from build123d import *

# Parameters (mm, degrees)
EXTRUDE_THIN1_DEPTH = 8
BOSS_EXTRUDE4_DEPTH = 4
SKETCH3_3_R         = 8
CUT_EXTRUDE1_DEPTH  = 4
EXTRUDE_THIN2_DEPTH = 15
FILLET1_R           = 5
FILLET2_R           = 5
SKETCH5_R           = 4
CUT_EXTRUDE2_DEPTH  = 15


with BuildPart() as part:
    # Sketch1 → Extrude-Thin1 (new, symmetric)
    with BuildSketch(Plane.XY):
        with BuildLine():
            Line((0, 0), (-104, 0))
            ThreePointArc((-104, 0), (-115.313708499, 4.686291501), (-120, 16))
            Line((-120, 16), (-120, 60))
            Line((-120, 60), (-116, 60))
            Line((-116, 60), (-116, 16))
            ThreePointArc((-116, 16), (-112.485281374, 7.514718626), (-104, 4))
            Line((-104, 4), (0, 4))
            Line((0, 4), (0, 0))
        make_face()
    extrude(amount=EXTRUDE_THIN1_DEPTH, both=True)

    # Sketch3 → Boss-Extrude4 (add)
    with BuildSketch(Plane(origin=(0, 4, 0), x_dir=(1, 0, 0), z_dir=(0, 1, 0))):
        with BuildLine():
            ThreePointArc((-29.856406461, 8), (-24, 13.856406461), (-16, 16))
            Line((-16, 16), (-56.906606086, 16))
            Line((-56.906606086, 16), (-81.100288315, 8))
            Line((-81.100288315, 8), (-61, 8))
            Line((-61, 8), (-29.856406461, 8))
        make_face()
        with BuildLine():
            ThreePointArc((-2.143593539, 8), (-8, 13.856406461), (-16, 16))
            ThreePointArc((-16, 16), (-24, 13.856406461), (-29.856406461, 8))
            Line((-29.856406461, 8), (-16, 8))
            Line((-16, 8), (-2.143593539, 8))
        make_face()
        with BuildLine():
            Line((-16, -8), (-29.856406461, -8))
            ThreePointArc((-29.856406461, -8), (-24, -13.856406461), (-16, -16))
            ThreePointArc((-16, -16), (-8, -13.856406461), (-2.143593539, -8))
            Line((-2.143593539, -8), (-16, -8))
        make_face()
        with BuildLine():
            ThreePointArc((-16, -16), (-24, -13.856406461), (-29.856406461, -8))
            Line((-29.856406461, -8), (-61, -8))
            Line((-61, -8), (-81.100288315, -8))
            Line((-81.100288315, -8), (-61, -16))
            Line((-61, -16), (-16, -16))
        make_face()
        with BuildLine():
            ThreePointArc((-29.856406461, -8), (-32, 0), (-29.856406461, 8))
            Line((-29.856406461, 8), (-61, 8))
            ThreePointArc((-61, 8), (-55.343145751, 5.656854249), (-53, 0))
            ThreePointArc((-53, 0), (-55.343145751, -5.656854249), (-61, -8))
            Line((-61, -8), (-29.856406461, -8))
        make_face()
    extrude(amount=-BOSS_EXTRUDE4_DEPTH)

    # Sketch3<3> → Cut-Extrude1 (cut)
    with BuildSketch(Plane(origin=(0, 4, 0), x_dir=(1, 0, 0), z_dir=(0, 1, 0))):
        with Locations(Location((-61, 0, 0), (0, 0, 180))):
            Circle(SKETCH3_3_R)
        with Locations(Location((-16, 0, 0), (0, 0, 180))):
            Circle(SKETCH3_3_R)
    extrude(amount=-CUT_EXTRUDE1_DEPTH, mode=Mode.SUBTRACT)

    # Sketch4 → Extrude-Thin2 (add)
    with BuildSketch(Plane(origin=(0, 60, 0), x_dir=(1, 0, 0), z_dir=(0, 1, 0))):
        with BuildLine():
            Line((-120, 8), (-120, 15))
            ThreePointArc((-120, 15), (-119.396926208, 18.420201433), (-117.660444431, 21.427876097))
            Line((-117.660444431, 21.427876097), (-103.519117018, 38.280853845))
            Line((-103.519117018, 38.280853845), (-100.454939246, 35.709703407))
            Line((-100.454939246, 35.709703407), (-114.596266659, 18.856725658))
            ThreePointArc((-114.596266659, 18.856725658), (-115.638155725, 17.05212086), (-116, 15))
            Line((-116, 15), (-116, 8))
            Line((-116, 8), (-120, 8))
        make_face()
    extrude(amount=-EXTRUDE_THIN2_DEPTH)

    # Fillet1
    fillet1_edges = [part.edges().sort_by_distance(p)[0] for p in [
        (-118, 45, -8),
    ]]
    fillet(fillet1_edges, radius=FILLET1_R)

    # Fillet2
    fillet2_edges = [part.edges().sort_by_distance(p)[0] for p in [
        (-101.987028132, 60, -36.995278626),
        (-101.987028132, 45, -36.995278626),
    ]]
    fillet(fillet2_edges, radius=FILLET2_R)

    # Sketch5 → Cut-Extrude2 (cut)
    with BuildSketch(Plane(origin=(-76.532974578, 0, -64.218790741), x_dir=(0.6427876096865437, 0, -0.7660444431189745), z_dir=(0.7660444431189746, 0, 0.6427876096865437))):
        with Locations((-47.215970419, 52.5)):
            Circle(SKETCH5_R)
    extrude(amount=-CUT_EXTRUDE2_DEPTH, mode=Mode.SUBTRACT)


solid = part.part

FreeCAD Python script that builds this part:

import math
import FreeCAD as App
import Part
import Sketcher
Q = App.Units.Quantity


def edges_at(feature, points):
    """Names of the edges that pass closest to the given points."""
    edges = feature.Shape.Edges
    near = lambda p: min(range(len(edges)), key=lambda i: edges[i].distToShape(Part.Vertex(*p))[0])
    return sorted({f"Edge{near(p) + 1}" for p in points})

doc = App.newDocument("Part")
body = doc.addObject("PartDesign::Body", "Body")

# Sketch on XY plane
sketch1 = body.newObject("Sketcher::SketchObject", "Sketch")
sketch1.AttachmentSupport = (doc.getObject("XY_Plane"), [""])
sketch1.MapMode = "FlatFace"
sketch1.addGeometry(Part.LineSegment(App.Vector(-104, 0, 0), App.Vector(0, 0, 0)), False)
sketch1.addGeometry(Part.LineSegment(App.Vector(0, 0, 0), App.Vector(0, 4, 0)), False)
sketch1.addGeometry(Part.LineSegment(App.Vector(0, 4, 0), App.Vector(-104, 4, 0)), False)
sketch1.addGeometry(Part.ArcOfCircle(Part.Circle(App.Vector(-104, 16, 0), App.Vector(0, 0, 1), 12), math.radians(-180), math.radians(-90)), False)
sketch1.addGeometry(Part.LineSegment(App.Vector(-116, 16, 0), App.Vector(-116, 60, 0)), False)
sketch1.addGeometry(Part.LineSegment(App.Vector(-116, 60, 0), App.Vector(-120, 60, 0)), False)
sketch1.addGeometry(Part.LineSegment(App.Vector(-120, 60, 0), App.Vector(-120, 16, 0)), False)
sketch1.addGeometry(Part.ArcOfCircle(Part.Circle(App.Vector(-104, 16, 0), App.Vector(0, 0, 1), 16), math.radians(180), math.radians(270)), False)
sketch1.addConstraint(Sketcher.Constraint("Coincident", 0, 2, 1, 1))
sketch1.addConstraint(Sketcher.Constraint("Coincident", 1, 2, 2, 1))
sketch1.addConstraint(Sketcher.Constraint("Tangent", 2, 2, 3, 2))
sketch1.addConstraint(Sketcher.Constraint("Tangent", 3, 1, 4, 1))
sketch1.addConstraint(Sketcher.Constraint("Coincident", 4, 2, 5, 1))
sketch1.addConstraint(Sketcher.Constraint("Coincident", 5, 2, 6, 1))
sketch1.addConstraint(Sketcher.Constraint("Tangent", 6, 2, 7, 1))
sketch1.addConstraint(Sketcher.Constraint("Tangent", 7, 2, 0, 1))
sketch1.addConstraint(Sketcher.Constraint("Horizontal", 0))
sketch1.addConstraint(Sketcher.Constraint("Vertical", 1))
sketch1.addConstraint(Sketcher.Constraint("Horizontal", 2))
sketch1.addConstraint(Sketcher.Constraint("Vertical", 4))
sketch1.addConstraint(Sketcher.Constraint("Horizontal", 5))
sketch1.addConstraint(Sketcher.Constraint("Vertical", 6))
sketch1.addConstraint(Sketcher.Constraint("Coincident", 0, 2, -1, 1))
sketch1.addConstraint(Sketcher.Constraint("Coincident", 7, 3, 3, 3))
sketch1.addConstraint(Sketcher.Constraint("Radius", 3, Q("12 mm")))
sketch1.addConstraint(Sketcher.Constraint("Radius", 7, Q("16 mm")))
sketch1.addConstraint(Sketcher.Constraint("DistanceX", 0, 1, 0, 2, Q("104 mm")))
sketch1.addConstraint(Sketcher.Constraint("DistanceY", 4, 1, 4, 2, Q("44 mm")))
pad1 = body.newObject("PartDesign::Pad", "Pad")
pad1.Profile = sketch1
pad1.Length = 16
pad1.Midplane = True

# Sketch on XZ plane
sketch2 = body.newObject("Sketcher::SketchObject", "Sketch001")
sketch2.AttachmentSupport = (doc.getObject("XZ_Plane"), [""])
sketch2.MapMode = "FlatFace"
sketch2.AttachmentOffset = App.Placement(App.Vector(0, 0, -4), App.Rotation())
sketch2.addGeometry(Part.LineSegment(App.Vector(-16, -16, 0), App.Vector(-57, -16, 0)), False)
sketch2.addGeometry(Part.LineSegment(App.Vector(-57, -16, 0), App.Vector(-81, -8, 0)), False)
sketch2.addGeometry(Part.LineSegment(App.Vector(-81, -8, 0), App.Vector(-61, -8, 0)), False)
sketch2.addGeometry(Part.ArcOfCircle(Part.Circle(App.Vector(-61, 0, 0), App.Vector(0, 0, 1), 8), math.radians(-90), math.radians(0)), False)
sketch2.addGeometry(Part.ArcOfCircle(Part.Circle(App.Vector(-61, 0, 0), App.Vector(0, 0, 1), 8), math.radians(0), math.radians(90)), False)
sketch2.addGeometry(Part.LineSegment(App.Vector(-61, 8, 0), App.Vector(-81, 8, 0)), False)
sketch2.addGeometry(Part.LineSegment(App.Vector(-81, 8, 0), App.Vector(-61, 16, 0)), False)
sketch2.addGeometry(Part.LineSegment(App.Vector(-61, 16, 0), App.Vector(-16, 16, 0)), False)
sketch2.addGeometry(Part.ArcOfCircle(Part.Circle(App.Vector(-16, 0, 0), App.Vector(0, 0, 1), 16), math.radians(30), math.radians(90)), False)
sketch2.addGeometry(Part.LineSegment(App.Vector(-2, 8, 0), App.Vector(-30, 8, 0)), False)
sketch2.addGeometry(Part.ArcOfCircle(Part.Circle(App.Vector(-16, 0, 0), App.Vector(0, 0, 1), 16), math.radians(150), math.radians(210)), False)
sketch2.addGeometry(Part.LineSegment(App.Vector(-30, -8, 0), App.Vector(-2, -8, 0)), False)
sketch2.addGeometry(Part.ArcOfCircle(Part.Circle(App.Vector(-16, 0, 0), App.Vector(0, 0, 1), 16), math.radians(-90), math.radians(-30)), False)
sketch2.addConstraint(Sketcher.Constraint("Coincident", 0, 2, 1, 1))
sketch2.addConstraint(Sketcher.Constraint("Coincident", 1, 2, 2, 1))
sketch2.addConstraint(Sketcher.Constraint("Tangent", 2, 2, 3, 1))
sketch2.addConstraint(Sketcher.Constraint("Tangent", 3, 2, 4, 1))
sketch2.addConstraint(Sketcher.Constraint("Tangent", 4, 2, 5, 1))
sketch2.addConstraint(Sketcher.Constraint("Coincident", 5, 2, 6, 1))
sketch2.addConstraint(Sketcher.Constraint("Coincident", 6, 2, 7, 1))
sketch2.addConstraint(Sketcher.Constraint("Tangent", 7, 2, 8, 2))
sketch2.addConstraint(Sketcher.Constraint("Coincident", 8, 1, 9, 1))
sketch2.addConstraint(Sketcher.Constraint("Coincident", 9, 2, 10, 1))
sketch2.addConstraint(Sketcher.Constraint("Coincident", 10, 2, 11, 1))
sketch2.addConstraint(Sketcher.Constraint("Coincident", 11, 2, 12, 2))
sketch2.addConstraint(Sketcher.Constraint("Tangent", 12, 1, 0, 1))
sketch2.addConstraint(Sketcher.Constraint("Horizontal", 0))
sketch2.addConstraint(Sketcher.Constraint("Horizontal", 2))
sketch2.addConstraint(Sketcher.Constraint("Horizontal", 5))
sketch2.addConstraint(Sketcher.Constraint("Horizontal", 7))
sketch2.addConstraint(Sketcher.Constraint("Horizontal", 9))
sketch2.addConstraint(Sketcher.Constraint("Horizontal", 11))
sketch2.addConstraint(Sketcher.Constraint("Coincident", 10, 3, 8, 3))
sketch2.addConstraint(Sketcher.Constraint("Coincident", 12, 3, 8, 3))
sketch2.addConstraint(Sketcher.Constraint("Equal", 3, 4))
sketch2.addConstraint(Sketcher.Constraint("Equal", 8, 10))
sketch2.addConstraint(Sketcher.Constraint("Equal", 10, 12))
sketch2.addConstraint(Sketcher.Constraint("Symmetric", 1, 2, 5, 2, -1))
sketch2.addConstraint(Sketcher.Constraint("Symmetric", 9, 2, 10, 2, -1))
sketch2.addConstraint(Sketcher.Constraint("PointOnObject", 3, 2, -1))
sketch2.addConstraint(Sketcher.Constraint("Horizontal", 5, 2, 8, 1))
sketch2.addConstraint(Sketcher.Constraint("Vertical", 4, 2, 6, 2))
sketch2.addConstraint(Sketcher.Constraint("Radius", 3, Q("8 mm")))
sketch2.addConstraint(Sketcher.Constraint("Radius", 8, Q("16 mm")))
sketch2.addConstraint(Sketcher.Constraint("DistanceX", 7, 1, 7, 2, Q("45 mm")))
sketch2.addConstraint(Sketcher.Constraint("DistanceX", 3, 3, -1, 1, Q("61 mm")))
sketch2.addConstraint(Sketcher.Constraint("DistanceX", 2, 1, 2, 2, Q("20.100288 mm")))
sketch2.addConstraint(Sketcher.Constraint("DistanceX", 0, 2, 0, 1, Q("40.906606 mm")))
pad2 = body.newObject("PartDesign::Pad", "Pad001")
pad2.Profile = sketch2
pad2.Length = 4

# Sketch on XZ plane
sketch3 = body.newObject("Sketcher::SketchObject", "Sketch002")
sketch3.AttachmentSupport = (doc.getObject("XZ_Plane"), [""])
sketch3.MapMode = "FlatFace"
sketch3.AttachmentOffset = App.Placement(App.Vector(0, 0, -4), App.Rotation())
sketch3.addGeometry(Part.Circle(App.Vector(-61, 0, 0), App.Vector(0, 0, 1), 8), False)
sketch3.addGeometry(Part.Circle(App.Vector(-16, 0, 0), App.Vector(0, 0, 1), 8), False)
sketch3.addConstraint(Sketcher.Constraint("Equal", 0, 1))
sketch3.addConstraint(Sketcher.Constraint("PointOnObject", 0, 3, -1))
sketch3.addConstraint(Sketcher.Constraint("PointOnObject", 1, 3, -1))
sketch3.addConstraint(Sketcher.Constraint("Diameter", 0, Q("16 mm")))
sketch3.addConstraint(Sketcher.Constraint("DistanceX", 0, 3, -1, 1, Q("61 mm")))
sketch3.addConstraint(Sketcher.Constraint("DistanceX", 1, 3, -1, 1, Q("16 mm")))
pocket1 = body.newObject("PartDesign::Pocket", "Pocket")
pocket1.Profile = sketch3
pocket1.Length = 4
pocket1.Reversed = True

# Sketch on XZ plane
sketch4 = body.newObject("Sketcher::SketchObject", "Sketch003")
sketch4.AttachmentSupport = (doc.getObject("XZ_Plane"), [""])
sketch4.MapMode = "FlatFace"
sketch4.AttachmentOffset = App.Placement(App.Vector(0, 0, -60), App.Rotation())
sketch4.addGeometry(Part.LineSegment(App.Vector(-120, -15, 0), App.Vector(-120, -8, 0)), False)
sketch4.addGeometry(Part.LineSegment(App.Vector(-120, -8, 0), App.Vector(-116, -8, 0)), False)
sketch4.addGeometry(Part.LineSegment(App.Vector(-116, -8, 0), App.Vector(-116, -15, 0)), False)
sketch4.addGeometry(Part.ArcOfCircle(Part.Circle(App.Vector(-110, -15, 0), App.Vector(0, 0, 1), 6), math.radians(180), math.radians(220)), False)
sketch4.addGeometry(Part.LineSegment(App.Vector(-114.6, -18.9, 0), App.Vector(-100.5, -35.7, 0)), False)
sketch4.addGeometry(Part.LineSegment(App.Vector(-100.5, -35.7, 0), App.Vector(-103.5, -38.3, 0)), False)
sketch4.addGeometry(Part.LineSegment(App.Vector(-103.5, -38.3, 0), App.Vector(-117.7, -21.4, 0)), False)
sketch4.addGeometry(Part.ArcOfCircle(Part.Circle(App.Vector(-110, -15, 0), App.Vector(0, 0, 1), 10), math.radians(180), math.radians(220)), False)
sketch4.addConstraint(Sketcher.Constraint("Coincident", 0, 2, 1, 1))
sketch4.addConstraint(Sketcher.Constraint("Coincident", 1, 2, 2, 1))
sketch4.addConstraint(Sketcher.Constraint("Tangent", 2, 2, 3, 1))
sketch4.addConstraint(Sketcher.Constraint("Tangent", 3, 2, 4, 1))
sketch4.addConstraint(Sketcher.Constraint("Coincident", 4, 2, 5, 1))
sketch4.addConstraint(Sketcher.Constraint("Coincident", 5, 2, 6, 1))
sketch4.addConstraint(Sketcher.Constraint("Tangent", 6, 2, 7, 2))
sketch4.addConstraint(Sketcher.Constraint("Tangent", 7, 1, 0, 1))
sketch4.addConstraint(Sketcher.Constraint("Vertical", 0))
sketch4.addConstraint(Sketcher.Constraint("Horizontal", 1))
sketch4.addConstraint(Sketcher.Constraint("Vertical", 2))
sketch4.addConstraint(Sketcher.Constraint("Coincident", 7, 3, 3, 3))
sketch4.addConstraint(Sketcher.Constraint("Perpendicular", 4, 5))
sketch4.addConstraint(Sketcher.Constraint("Perpendicular", 5, 6))
sketch4.addConstraint(Sketcher.Constraint("Radius", 3, Q("6 mm")))
sketch4.addConstraint(Sketcher.Constraint("Radius", 7, Q("10 mm")))
sketch4.addConstraint(Sketcher.Constraint("DistanceY", 0, 1, 0, 2, Q("7 mm")))
sketch4.addConstraint(Sketcher.Constraint("Angle", 4, Q("-50 deg")))
sketch4.addConstraint(Sketcher.Constraint("Distance", 4, Q("22 mm")))
sketch4.addConstraint(Sketcher.Constraint("DistanceX", 3, 3, -1, 1, Q("110 mm")))
sketch4.addConstraint(Sketcher.Constraint("DistanceY", 3, 3, -1, 1, Q("15 mm")))
pad3 = body.newObject("PartDesign::Pad", "Pad002")
pad3.Profile = sketch4
pad3.Length = 15
doc.recompute()

fillet = body.newObject("PartDesign::Fillet", "Fillet")
fillet.Base = (pad3, edges_at(pad3, [(-118, 45, -8)]))
fillet.Radius = 5
doc.recompute()

fillet2 = body.newObject("PartDesign::Fillet", "Fillet001")
fillet2.Base = (fillet, edges_at(fillet, [(-101.987, 60, -36.995), (-101.987, 45, -36.995)]))
fillet2.Radius = 5

# Sketch on an angled plane
sketch5 = body.newObject("Sketcher::SketchObject", "Sketch004")
sketch5.Placement = App.Placement(App.Vector(-76.532975, 0, -64.218791), App.Rotation(App.Vector(0.64278761, 0, -0.766044443), App.Vector(0, 1, 0), App.Vector(0.766044443, 0, 0.64278761), "ZXY"))
sketch5.addGeometry(Part.Circle(App.Vector(-47.2, 52.5, 0), App.Vector(0, 0, 1), 4), False)
sketch5.addConstraint(Sketcher.Constraint("Diameter", 0, Q("8 mm")))
sketch5.addConstraint(Sketcher.Constraint("DistanceY", -1, 1, 0, 3, Q("52.5 mm")))
sketch5.addConstraint(Sketcher.Constraint("DistanceX", 0, 3, -1, 1, Q("47.21597 mm")))
pocket2 = body.newObject("PartDesign::Pocket", "Pocket001")
pocket2.Profile = sketch5
pocket2.Length = 15

doc.recompute()
